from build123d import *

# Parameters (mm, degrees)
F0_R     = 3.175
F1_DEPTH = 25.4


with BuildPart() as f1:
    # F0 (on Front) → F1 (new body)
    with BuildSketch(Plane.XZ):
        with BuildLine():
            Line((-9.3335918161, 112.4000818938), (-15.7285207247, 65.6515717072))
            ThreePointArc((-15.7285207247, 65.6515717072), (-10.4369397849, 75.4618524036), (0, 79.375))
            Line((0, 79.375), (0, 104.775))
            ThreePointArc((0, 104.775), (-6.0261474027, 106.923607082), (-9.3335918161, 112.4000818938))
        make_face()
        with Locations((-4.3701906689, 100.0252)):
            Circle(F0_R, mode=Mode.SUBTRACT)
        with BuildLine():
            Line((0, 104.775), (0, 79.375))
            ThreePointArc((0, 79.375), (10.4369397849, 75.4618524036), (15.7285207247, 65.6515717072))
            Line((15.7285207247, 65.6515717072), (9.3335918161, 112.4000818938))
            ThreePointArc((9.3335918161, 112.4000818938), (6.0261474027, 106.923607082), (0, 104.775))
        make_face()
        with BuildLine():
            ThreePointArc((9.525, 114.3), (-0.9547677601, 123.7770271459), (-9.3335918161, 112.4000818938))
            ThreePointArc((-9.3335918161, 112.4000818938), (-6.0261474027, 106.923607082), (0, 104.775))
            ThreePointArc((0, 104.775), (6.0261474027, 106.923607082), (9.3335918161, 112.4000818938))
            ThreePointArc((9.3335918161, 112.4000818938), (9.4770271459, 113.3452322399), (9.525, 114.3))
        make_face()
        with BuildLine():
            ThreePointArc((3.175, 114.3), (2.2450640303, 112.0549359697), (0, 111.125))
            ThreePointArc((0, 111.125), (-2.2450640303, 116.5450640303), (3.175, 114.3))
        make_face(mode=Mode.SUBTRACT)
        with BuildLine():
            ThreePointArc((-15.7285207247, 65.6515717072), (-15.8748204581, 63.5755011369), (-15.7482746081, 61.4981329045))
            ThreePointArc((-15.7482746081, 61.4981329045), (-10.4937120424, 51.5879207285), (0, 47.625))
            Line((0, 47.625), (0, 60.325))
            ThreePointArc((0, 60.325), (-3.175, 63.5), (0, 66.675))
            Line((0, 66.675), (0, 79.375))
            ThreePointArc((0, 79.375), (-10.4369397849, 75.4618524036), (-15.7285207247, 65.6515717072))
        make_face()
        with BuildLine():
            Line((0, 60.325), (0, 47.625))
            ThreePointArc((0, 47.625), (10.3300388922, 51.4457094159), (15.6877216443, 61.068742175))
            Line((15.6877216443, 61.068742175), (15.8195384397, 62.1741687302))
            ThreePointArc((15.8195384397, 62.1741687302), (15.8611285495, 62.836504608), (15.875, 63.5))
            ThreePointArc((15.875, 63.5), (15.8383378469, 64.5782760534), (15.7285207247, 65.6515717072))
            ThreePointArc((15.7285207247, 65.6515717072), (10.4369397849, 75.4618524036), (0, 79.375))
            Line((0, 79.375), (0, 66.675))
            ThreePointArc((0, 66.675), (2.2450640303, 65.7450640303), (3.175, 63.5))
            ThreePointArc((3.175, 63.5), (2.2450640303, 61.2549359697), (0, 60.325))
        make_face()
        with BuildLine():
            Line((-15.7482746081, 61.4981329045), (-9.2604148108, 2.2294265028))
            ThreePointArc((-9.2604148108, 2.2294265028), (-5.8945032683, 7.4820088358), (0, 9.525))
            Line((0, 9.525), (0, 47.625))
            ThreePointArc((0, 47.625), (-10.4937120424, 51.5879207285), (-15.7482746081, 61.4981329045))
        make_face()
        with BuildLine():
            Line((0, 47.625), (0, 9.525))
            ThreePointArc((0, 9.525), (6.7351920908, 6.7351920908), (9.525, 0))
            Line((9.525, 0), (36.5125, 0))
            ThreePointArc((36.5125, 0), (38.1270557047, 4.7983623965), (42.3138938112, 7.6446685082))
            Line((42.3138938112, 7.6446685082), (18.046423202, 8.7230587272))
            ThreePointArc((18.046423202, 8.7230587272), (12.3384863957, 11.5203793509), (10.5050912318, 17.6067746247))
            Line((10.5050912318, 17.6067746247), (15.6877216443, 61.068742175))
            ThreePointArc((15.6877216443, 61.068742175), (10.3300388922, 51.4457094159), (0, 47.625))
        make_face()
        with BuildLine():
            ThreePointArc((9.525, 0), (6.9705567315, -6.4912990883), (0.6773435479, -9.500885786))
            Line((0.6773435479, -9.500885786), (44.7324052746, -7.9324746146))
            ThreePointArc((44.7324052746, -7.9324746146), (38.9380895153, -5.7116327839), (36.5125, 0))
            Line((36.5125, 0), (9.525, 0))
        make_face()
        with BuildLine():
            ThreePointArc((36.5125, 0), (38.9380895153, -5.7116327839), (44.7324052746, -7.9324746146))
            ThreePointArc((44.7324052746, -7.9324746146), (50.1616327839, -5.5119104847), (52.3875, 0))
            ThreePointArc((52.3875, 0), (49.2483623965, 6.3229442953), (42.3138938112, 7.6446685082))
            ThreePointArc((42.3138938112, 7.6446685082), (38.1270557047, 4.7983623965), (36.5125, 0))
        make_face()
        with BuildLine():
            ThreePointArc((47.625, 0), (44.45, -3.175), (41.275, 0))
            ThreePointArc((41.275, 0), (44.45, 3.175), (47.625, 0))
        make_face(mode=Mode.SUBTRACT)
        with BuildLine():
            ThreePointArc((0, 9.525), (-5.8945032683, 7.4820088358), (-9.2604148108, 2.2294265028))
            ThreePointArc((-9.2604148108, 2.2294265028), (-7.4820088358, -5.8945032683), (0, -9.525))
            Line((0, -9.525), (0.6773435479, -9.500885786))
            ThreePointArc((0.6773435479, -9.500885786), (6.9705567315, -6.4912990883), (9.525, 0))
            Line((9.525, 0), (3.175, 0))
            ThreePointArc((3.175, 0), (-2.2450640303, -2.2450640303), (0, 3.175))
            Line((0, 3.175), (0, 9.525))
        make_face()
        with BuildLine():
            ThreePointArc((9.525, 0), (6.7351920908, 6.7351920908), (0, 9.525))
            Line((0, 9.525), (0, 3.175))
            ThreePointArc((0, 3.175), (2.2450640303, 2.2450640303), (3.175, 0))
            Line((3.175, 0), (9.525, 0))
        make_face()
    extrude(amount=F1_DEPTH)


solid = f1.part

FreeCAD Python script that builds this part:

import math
import FreeCAD as App
import Part
import Sketcher

V = App.Vector
Q = App.Units.Quantity

doc = App.newDocument("Part")
body = doc.addObject("PartDesign::Body", "Body")

sketch1 = body.newObject("Sketcher::SketchObject", "Sketch")
sketch1.AttachmentSupport = (doc.getObject("XZ_Plane"), [""])
sketch1.MapMode = "FlatFace"
sketch1.addGeometry([
    Part.LineSegment(V(-9.3, 112.4, 0), V(-15.7, 65.7, 0)),
    Part.ArcOfCircle(Part.Circle(V(0, 63.5, 0), V(0, 0, 1), 15.9), math.radians(172.21), math.radians(187.24)),
    Part.LineSegment(V(-15.7, 61.5, 0), V(-9.3, 2.2, 0)),
    Part.ArcOfCircle(Part.Circle(V(0, 0, 0), V(0, 0, 1), 9.5), math.radians(166), math.radians(270)),
    Part.LineSegment(V(0, -9.5, 0), V(0.7, -9.5, 0)),
    Part.LineSegment(V(0.7, -9.5, 0), V(44.7, -7.9, 0)),
    Part.ArcOfCircle(Part.Circle(V(44.5, 0, 0), V(0, 0, 1), 7.9), math.radians(-88), math.radians(0)),
    Part.ArcOfCircle(Part.Circle(V(44.5, 0, 0), V(0, 0, 1), 7.9), math.radians(0), math.radians(106)),
    Part.LineSegment(V(42.3, 7.6, 0), V(18, 8.7, 0)),
    Part.ArcOfCircle(Part.Circle(V(18.4, 16.7, 0), V(0, 0, 1), 8), math.radians(173), math.radians(267)),
    Part.LineSegment(V(10.5, 17.6, 0), V(15.7, 61.1, 0)),
    Part.LineSegment(V(15.7, 61.1, 0), V(15.8, 62.2, 0)),
    Part.ArcOfCircle(Part.Circle(V(0, 63.5, 0), V(0, 0, 1), 15.9), math.radians(-4.79), math.radians(0)),
    Part.ArcOfCircle(Part.Circle(V(0, 63.5, 0), V(0, 0, 1), 15.9), math.radians(0), math.radians(7.79)),
    Part.LineSegment(V(15.7, 65.7, 0), V(9.3, 112.4, 0)),
    Part.ArcOfCircle(Part.Circle(V(0, 114.3, 0), V(0, 0, 1), 9.5), math.radians(-11.51), math.radians(0)),
    Part.ArcOfCircle(Part.Circle(V(0, 114.3, 0), V(0, 0, 1), 9.5), math.radians(0), math.radians(192)),
    Part.ArcOfCircle(Part.Circle(V(0, 0, 0), V(0, 0, 1), 3.2), math.radians(90), math.radians(360)),
    Part.ArcOfCircle(Part.Circle(V(0, 0, 0), V(0, 0, 1), 3.2), math.radians(0), math.radians(90)),
    Part.Circle(V(44.5, 0, 0), V(0, 0, 1), 3.2),
    Part.ArcOfCircle(Part.Circle(V(0, 63.5, 0), V(0, 0, 1), 3.2), math.radians(90), math.radians(270)),
    Part.ArcOfCircle(Part.Circle(V(0, 63.5, 0), V(0, 0, 1), 3.2), math.radians(0), math.radians(90)),
    Part.ArcOfCircle(Part.Circle(V(0, 63.5, 0), V(0, 0, 1), 3.2), math.radians(-90), math.radians(0)),
    Part.Circle(V(-4.4, 100, 0), V(0, 0, 1), 3.2),
    Part.ArcOfCircle(Part.Circle(V(0, 114.3, 0), V(0, 0, 1), 3.2), math.radians(0), math.radians(270)),
    Part.ArcOfCircle(Part.Circle(V(0, 114.3, 0), V(0, 0, 1), 3.2), math.radians(-90), math.radians(0)),
], False)
sketch1.addConstraint([
    Sketcher.Constraint("Tangent", 0, 2, 1, 1),
    Sketcher.Constraint("Coincident", 1, 2, 2, 1),
    Sketcher.Constraint("Coincident", 2, 2, 3, 1),
    Sketcher.Constraint("Coincident", 3, 2, 4, 1),
    Sketcher.Constraint("Coincident", 4, 2, 5, 1),
    Sketcher.Constraint("Tangent", 5, 2, 6, 1),
    Sketcher.Constraint("Tangent", 6, 2, 7, 1),
    Sketcher.Constraint("Coincident", 7, 2, 8, 1),
    Sketcher.Constraint("Tangent", 8, 2, 9, 2),
    Sketcher.Constraint("Tangent", 9, 1, 10, 1),
    Sketcher.Constraint("Coincident", 10, 2, 11, 1),
    Sketcher.Constraint("Coincident", 11, 2, 12, 1),
    Sketcher.Constraint("Tangent", 12, 2, 13, 1),
    Sketcher.Constraint("Tangent", 13, 2, 14, 1),
    Sketcher.Constraint("Coincident", 14, 2, 15, 1),
    Sketcher.Constraint("Tangent", 15, 2, 16, 1),
    Sketcher.Constraint("Coincident", 16, 2, 0, 1),
    Sketcher.Constraint("Tangent", 17, 1, 18, 2),
    Sketcher.Constraint("Coincident", 18, 1, 17, 2),
    Sketcher.Constraint("Tangent", 20, 1, 21, 2),
    Sketcher.Constraint("Tangent", 21, 1, 22, 2),
    Sketcher.Constraint("Tangent", 22, 1, 20, 2),
    Sketcher.Constraint("Tangent", 24, 1, 25, 2),
    Sketcher.Constraint("Coincident", 25, 1, 24, 2),
    Sketcher.Constraint("Coincident", 3, 3, -1, 1),
    Sketcher.Constraint("Coincident", 17, 3, -1, 1),
    Sketcher.Constraint("Coincident", 12, 3, 1, 3),
    Sketcher.Constraint("Coincident", 19, 3, 6, 3),
    Sketcher.Constraint("Coincident", 20, 3, 1, 3),
    Sketcher.Constraint("Coincident", 24, 3, 15, 3),
    Sketcher.Constraint("Equal", 6, 7),
    Sketcher.Constraint("Equal", 1, 12),
    Sketcher.Constraint("Equal", 12, 13),
    Sketcher.Constraint("Equal", 3, 15),
    Sketcher.Constraint("Equal", 15, 16),
    Sketcher.Constraint("Equal", 18, 19),
    Sketcher.Constraint("Equal", 19, 20),
    Sketcher.Constraint("Equal", 22, 23),
    Sketcher.Constraint("Equal", 23, 24),
    Sketcher.Constraint("Symmetric", 0, 2, 13, 2, -2),
    Sketcher.Constraint("PointOnObject", 6, 3, -1),
    Sketcher.Constraint("PointOnObject", 15, 3, -2),
    Sketcher.Constraint("PointOnObject", 3, 2, -2),
    Sketcher.Constraint("PointOnObject", 6, 2, -1),
    Sketcher.Constraint("PointOnObject", 17, 1, -2),
    Sketcher.Constraint("PointOnObject", 18, 1, -1),
    Sketcher.Constraint("PointOnObject", 20, 1, -2),
    Sketcher.Constraint("PointOnObject", 22, 1, -2),
    Sketcher.Constraint("PointOnObject", 25, 1, -2),
    Sketcher.Constraint("Parallel", 4, 5),
    Sketcher.Constraint("Parallel", 10, 11),
    Sketcher.Constraint("Horizontal", 22, 3, 12, 2),
    Sketcher.Constraint("Horizontal", 25, 3, 15, 2),
    Sketcher.Constraint("Horizontal", 12, 2, 21, 1),
    Sketcher.Constraint("Horizontal", 15, 2, 24, 1),
    Sketcher.Constraint("Diameter", 19, Q("0.25 in")),
    Sketcher.Constraint("Radius", 1, Q("0.625 in")),
    Sketcher.Constraint("Radius", 3, Q("0.375 in")),
    Sketcher.Constraint("Radius", 6, Q("0.3125 in")),
    Sketcher.Constraint("Radius", 9, Q("0.313 in")),
    Sketcher.Constraint("DistanceY", 12, 3, 15, 3, Q("2 in")),
    Sketcher.Constraint("DistanceY", -1, 1, 1, 3, Q("2.5 in")),
    Sketcher.Constraint("DistanceX", -1, 1, 6, 3, Q("1.75 in")),
    Sketcher.Constraint("DistanceY", -1, 1, 23, 3, Q("3.938 in")),
    Sketcher.Constraint("DistanceY", -1, 1, 14, 2, Q("4.4252001 in")),
    Sketcher.Constraint("DistanceX", 10, 2, 13, 2, 0.040799),
    Sketcher.Constraint("DistanceX", 16, 2, 23, 3, 4.963401),
    Sketcher.Constraint("Distance", 5, 44.082972),
    Sketcher.Constraint("Distance", 8, 24.291419),
    Sketcher.Constraint("Distance", 10, 43.769879),
    Sketcher.Constraint("Distance", 11, 1.113258),
    Sketcher.Constraint("DistanceY", -1, 1, 9, 3, 16.665421),
    Sketcher.Constraint("DistanceY", 1, 2, 0, 2, 4.153439),
    Sketcher.Constraint("DistanceX", 2, 2, 9, 3, 27.659778),
])
pad1 = body.newObject("PartDesign::Pad", "Pad")
pad1.Profile = sketch1
pad1.Length = Q("1 in")

doc.recompute()
